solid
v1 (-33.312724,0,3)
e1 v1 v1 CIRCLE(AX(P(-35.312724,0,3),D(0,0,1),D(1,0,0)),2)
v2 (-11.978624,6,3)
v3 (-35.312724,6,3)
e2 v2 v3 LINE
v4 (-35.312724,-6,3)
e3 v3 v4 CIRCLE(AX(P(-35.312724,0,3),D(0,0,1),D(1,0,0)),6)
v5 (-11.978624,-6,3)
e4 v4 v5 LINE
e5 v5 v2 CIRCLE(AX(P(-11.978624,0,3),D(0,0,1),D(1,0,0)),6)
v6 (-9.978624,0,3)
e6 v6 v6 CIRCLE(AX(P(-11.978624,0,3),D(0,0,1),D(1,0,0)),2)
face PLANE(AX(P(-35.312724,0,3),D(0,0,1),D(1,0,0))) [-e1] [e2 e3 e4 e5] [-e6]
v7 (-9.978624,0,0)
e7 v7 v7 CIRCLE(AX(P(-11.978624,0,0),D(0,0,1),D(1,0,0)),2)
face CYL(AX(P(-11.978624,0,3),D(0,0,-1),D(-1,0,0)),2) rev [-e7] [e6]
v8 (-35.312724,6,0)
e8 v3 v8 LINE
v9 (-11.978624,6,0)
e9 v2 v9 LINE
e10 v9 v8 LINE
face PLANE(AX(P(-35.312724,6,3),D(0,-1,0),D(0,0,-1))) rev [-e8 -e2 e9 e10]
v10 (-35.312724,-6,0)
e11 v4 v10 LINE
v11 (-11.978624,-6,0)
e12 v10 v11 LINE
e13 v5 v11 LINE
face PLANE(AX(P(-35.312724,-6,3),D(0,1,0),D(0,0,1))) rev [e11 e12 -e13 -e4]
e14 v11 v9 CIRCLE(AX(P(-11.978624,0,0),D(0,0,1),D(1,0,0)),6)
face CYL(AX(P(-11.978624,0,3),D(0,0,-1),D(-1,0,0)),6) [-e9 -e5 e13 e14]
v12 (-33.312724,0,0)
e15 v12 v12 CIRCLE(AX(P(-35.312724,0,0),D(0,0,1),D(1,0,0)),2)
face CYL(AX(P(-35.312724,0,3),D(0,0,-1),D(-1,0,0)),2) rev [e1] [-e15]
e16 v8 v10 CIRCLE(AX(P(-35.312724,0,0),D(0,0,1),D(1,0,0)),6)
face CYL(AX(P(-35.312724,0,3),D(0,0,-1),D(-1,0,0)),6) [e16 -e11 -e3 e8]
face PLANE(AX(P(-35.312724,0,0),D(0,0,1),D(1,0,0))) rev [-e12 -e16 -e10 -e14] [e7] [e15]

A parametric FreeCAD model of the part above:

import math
import FreeCAD as App
import Part
import Sketcher

V = App.Vector

doc = App.newDocument("Part")
body = doc.addObject("PartDesign::Body", "Body")

# Sketch on XY plane
sketch1 = body.newObject("Sketcher::SketchObject", "Sketch")
sketch1.AttachmentSupport = (doc.getObject("XY_Plane"), [""])
sketch1.MapMode = "FlatFace"
sketch1.addGeometry([
    Part.LineSegment(V(-12, 6, 0), V(-35.3, 6, 0)),  # 0
    Part.ArcOfCircle(Part.Circle(V(-35.3, 0, 0), V(0, 0, 1), 6), math.radians(90), math.radians(270)),  # 1
    Part.LineSegment(V(-35.3, -6, 0), V(-12, -6, 0)),  # 2
    Part.ArcOfCircle(Part.Circle(V(-12, 0, 0), V(0, 0, 1), 6), math.radians(-90), math.radians(90)),  # 3
    Part.Circle(V(-12, 0, 0), V(0, 0, 1), 2),  # 4
    Part.Circle(V(-35.3, 0, 0), V(0, 0, 1), 2),  # 5
], False)
sketch1.addConstraint([
    Sketcher.Constraint("Tangent", 0, 2, 1, 1),
    Sketcher.Constraint("Tangent", 1, 2, 2, 1),
    Sketcher.Constraint("Tangent", 2, 2, 3, 1),
    Sketcher.Constraint("Tangent", 3, 2, 0, 1),
    Sketcher.Constraint("Horizontal", 0),
    Sketcher.Constraint("Horizontal", 2),
    Sketcher.Constraint("Coincident", 4, 3, 3, 3),
    Sketcher.Constraint("Coincident", 5, 3, 1, 3),
    Sketcher.Constraint("Equal", 4, 5),
    Sketcher.Constraint("PointOnObject", 1, 3, -1),
    Sketcher.Constraint("Diameter", 4, 4.0),
    Sketcher.Constraint("Radius", 1, 6.0),
    Sketcher.Constraint("DistanceX", 0, 2, 0, 1, 23.3341),
    Sketcher.Constraint("DistanceX", 1, 3, -1, 1, 35.312724),
])
pad1 = body.newObject("PartDesign::Pad", "Pad")
pad1.Profile = sketch1
pad1.Length = 3

doc.recompute()
